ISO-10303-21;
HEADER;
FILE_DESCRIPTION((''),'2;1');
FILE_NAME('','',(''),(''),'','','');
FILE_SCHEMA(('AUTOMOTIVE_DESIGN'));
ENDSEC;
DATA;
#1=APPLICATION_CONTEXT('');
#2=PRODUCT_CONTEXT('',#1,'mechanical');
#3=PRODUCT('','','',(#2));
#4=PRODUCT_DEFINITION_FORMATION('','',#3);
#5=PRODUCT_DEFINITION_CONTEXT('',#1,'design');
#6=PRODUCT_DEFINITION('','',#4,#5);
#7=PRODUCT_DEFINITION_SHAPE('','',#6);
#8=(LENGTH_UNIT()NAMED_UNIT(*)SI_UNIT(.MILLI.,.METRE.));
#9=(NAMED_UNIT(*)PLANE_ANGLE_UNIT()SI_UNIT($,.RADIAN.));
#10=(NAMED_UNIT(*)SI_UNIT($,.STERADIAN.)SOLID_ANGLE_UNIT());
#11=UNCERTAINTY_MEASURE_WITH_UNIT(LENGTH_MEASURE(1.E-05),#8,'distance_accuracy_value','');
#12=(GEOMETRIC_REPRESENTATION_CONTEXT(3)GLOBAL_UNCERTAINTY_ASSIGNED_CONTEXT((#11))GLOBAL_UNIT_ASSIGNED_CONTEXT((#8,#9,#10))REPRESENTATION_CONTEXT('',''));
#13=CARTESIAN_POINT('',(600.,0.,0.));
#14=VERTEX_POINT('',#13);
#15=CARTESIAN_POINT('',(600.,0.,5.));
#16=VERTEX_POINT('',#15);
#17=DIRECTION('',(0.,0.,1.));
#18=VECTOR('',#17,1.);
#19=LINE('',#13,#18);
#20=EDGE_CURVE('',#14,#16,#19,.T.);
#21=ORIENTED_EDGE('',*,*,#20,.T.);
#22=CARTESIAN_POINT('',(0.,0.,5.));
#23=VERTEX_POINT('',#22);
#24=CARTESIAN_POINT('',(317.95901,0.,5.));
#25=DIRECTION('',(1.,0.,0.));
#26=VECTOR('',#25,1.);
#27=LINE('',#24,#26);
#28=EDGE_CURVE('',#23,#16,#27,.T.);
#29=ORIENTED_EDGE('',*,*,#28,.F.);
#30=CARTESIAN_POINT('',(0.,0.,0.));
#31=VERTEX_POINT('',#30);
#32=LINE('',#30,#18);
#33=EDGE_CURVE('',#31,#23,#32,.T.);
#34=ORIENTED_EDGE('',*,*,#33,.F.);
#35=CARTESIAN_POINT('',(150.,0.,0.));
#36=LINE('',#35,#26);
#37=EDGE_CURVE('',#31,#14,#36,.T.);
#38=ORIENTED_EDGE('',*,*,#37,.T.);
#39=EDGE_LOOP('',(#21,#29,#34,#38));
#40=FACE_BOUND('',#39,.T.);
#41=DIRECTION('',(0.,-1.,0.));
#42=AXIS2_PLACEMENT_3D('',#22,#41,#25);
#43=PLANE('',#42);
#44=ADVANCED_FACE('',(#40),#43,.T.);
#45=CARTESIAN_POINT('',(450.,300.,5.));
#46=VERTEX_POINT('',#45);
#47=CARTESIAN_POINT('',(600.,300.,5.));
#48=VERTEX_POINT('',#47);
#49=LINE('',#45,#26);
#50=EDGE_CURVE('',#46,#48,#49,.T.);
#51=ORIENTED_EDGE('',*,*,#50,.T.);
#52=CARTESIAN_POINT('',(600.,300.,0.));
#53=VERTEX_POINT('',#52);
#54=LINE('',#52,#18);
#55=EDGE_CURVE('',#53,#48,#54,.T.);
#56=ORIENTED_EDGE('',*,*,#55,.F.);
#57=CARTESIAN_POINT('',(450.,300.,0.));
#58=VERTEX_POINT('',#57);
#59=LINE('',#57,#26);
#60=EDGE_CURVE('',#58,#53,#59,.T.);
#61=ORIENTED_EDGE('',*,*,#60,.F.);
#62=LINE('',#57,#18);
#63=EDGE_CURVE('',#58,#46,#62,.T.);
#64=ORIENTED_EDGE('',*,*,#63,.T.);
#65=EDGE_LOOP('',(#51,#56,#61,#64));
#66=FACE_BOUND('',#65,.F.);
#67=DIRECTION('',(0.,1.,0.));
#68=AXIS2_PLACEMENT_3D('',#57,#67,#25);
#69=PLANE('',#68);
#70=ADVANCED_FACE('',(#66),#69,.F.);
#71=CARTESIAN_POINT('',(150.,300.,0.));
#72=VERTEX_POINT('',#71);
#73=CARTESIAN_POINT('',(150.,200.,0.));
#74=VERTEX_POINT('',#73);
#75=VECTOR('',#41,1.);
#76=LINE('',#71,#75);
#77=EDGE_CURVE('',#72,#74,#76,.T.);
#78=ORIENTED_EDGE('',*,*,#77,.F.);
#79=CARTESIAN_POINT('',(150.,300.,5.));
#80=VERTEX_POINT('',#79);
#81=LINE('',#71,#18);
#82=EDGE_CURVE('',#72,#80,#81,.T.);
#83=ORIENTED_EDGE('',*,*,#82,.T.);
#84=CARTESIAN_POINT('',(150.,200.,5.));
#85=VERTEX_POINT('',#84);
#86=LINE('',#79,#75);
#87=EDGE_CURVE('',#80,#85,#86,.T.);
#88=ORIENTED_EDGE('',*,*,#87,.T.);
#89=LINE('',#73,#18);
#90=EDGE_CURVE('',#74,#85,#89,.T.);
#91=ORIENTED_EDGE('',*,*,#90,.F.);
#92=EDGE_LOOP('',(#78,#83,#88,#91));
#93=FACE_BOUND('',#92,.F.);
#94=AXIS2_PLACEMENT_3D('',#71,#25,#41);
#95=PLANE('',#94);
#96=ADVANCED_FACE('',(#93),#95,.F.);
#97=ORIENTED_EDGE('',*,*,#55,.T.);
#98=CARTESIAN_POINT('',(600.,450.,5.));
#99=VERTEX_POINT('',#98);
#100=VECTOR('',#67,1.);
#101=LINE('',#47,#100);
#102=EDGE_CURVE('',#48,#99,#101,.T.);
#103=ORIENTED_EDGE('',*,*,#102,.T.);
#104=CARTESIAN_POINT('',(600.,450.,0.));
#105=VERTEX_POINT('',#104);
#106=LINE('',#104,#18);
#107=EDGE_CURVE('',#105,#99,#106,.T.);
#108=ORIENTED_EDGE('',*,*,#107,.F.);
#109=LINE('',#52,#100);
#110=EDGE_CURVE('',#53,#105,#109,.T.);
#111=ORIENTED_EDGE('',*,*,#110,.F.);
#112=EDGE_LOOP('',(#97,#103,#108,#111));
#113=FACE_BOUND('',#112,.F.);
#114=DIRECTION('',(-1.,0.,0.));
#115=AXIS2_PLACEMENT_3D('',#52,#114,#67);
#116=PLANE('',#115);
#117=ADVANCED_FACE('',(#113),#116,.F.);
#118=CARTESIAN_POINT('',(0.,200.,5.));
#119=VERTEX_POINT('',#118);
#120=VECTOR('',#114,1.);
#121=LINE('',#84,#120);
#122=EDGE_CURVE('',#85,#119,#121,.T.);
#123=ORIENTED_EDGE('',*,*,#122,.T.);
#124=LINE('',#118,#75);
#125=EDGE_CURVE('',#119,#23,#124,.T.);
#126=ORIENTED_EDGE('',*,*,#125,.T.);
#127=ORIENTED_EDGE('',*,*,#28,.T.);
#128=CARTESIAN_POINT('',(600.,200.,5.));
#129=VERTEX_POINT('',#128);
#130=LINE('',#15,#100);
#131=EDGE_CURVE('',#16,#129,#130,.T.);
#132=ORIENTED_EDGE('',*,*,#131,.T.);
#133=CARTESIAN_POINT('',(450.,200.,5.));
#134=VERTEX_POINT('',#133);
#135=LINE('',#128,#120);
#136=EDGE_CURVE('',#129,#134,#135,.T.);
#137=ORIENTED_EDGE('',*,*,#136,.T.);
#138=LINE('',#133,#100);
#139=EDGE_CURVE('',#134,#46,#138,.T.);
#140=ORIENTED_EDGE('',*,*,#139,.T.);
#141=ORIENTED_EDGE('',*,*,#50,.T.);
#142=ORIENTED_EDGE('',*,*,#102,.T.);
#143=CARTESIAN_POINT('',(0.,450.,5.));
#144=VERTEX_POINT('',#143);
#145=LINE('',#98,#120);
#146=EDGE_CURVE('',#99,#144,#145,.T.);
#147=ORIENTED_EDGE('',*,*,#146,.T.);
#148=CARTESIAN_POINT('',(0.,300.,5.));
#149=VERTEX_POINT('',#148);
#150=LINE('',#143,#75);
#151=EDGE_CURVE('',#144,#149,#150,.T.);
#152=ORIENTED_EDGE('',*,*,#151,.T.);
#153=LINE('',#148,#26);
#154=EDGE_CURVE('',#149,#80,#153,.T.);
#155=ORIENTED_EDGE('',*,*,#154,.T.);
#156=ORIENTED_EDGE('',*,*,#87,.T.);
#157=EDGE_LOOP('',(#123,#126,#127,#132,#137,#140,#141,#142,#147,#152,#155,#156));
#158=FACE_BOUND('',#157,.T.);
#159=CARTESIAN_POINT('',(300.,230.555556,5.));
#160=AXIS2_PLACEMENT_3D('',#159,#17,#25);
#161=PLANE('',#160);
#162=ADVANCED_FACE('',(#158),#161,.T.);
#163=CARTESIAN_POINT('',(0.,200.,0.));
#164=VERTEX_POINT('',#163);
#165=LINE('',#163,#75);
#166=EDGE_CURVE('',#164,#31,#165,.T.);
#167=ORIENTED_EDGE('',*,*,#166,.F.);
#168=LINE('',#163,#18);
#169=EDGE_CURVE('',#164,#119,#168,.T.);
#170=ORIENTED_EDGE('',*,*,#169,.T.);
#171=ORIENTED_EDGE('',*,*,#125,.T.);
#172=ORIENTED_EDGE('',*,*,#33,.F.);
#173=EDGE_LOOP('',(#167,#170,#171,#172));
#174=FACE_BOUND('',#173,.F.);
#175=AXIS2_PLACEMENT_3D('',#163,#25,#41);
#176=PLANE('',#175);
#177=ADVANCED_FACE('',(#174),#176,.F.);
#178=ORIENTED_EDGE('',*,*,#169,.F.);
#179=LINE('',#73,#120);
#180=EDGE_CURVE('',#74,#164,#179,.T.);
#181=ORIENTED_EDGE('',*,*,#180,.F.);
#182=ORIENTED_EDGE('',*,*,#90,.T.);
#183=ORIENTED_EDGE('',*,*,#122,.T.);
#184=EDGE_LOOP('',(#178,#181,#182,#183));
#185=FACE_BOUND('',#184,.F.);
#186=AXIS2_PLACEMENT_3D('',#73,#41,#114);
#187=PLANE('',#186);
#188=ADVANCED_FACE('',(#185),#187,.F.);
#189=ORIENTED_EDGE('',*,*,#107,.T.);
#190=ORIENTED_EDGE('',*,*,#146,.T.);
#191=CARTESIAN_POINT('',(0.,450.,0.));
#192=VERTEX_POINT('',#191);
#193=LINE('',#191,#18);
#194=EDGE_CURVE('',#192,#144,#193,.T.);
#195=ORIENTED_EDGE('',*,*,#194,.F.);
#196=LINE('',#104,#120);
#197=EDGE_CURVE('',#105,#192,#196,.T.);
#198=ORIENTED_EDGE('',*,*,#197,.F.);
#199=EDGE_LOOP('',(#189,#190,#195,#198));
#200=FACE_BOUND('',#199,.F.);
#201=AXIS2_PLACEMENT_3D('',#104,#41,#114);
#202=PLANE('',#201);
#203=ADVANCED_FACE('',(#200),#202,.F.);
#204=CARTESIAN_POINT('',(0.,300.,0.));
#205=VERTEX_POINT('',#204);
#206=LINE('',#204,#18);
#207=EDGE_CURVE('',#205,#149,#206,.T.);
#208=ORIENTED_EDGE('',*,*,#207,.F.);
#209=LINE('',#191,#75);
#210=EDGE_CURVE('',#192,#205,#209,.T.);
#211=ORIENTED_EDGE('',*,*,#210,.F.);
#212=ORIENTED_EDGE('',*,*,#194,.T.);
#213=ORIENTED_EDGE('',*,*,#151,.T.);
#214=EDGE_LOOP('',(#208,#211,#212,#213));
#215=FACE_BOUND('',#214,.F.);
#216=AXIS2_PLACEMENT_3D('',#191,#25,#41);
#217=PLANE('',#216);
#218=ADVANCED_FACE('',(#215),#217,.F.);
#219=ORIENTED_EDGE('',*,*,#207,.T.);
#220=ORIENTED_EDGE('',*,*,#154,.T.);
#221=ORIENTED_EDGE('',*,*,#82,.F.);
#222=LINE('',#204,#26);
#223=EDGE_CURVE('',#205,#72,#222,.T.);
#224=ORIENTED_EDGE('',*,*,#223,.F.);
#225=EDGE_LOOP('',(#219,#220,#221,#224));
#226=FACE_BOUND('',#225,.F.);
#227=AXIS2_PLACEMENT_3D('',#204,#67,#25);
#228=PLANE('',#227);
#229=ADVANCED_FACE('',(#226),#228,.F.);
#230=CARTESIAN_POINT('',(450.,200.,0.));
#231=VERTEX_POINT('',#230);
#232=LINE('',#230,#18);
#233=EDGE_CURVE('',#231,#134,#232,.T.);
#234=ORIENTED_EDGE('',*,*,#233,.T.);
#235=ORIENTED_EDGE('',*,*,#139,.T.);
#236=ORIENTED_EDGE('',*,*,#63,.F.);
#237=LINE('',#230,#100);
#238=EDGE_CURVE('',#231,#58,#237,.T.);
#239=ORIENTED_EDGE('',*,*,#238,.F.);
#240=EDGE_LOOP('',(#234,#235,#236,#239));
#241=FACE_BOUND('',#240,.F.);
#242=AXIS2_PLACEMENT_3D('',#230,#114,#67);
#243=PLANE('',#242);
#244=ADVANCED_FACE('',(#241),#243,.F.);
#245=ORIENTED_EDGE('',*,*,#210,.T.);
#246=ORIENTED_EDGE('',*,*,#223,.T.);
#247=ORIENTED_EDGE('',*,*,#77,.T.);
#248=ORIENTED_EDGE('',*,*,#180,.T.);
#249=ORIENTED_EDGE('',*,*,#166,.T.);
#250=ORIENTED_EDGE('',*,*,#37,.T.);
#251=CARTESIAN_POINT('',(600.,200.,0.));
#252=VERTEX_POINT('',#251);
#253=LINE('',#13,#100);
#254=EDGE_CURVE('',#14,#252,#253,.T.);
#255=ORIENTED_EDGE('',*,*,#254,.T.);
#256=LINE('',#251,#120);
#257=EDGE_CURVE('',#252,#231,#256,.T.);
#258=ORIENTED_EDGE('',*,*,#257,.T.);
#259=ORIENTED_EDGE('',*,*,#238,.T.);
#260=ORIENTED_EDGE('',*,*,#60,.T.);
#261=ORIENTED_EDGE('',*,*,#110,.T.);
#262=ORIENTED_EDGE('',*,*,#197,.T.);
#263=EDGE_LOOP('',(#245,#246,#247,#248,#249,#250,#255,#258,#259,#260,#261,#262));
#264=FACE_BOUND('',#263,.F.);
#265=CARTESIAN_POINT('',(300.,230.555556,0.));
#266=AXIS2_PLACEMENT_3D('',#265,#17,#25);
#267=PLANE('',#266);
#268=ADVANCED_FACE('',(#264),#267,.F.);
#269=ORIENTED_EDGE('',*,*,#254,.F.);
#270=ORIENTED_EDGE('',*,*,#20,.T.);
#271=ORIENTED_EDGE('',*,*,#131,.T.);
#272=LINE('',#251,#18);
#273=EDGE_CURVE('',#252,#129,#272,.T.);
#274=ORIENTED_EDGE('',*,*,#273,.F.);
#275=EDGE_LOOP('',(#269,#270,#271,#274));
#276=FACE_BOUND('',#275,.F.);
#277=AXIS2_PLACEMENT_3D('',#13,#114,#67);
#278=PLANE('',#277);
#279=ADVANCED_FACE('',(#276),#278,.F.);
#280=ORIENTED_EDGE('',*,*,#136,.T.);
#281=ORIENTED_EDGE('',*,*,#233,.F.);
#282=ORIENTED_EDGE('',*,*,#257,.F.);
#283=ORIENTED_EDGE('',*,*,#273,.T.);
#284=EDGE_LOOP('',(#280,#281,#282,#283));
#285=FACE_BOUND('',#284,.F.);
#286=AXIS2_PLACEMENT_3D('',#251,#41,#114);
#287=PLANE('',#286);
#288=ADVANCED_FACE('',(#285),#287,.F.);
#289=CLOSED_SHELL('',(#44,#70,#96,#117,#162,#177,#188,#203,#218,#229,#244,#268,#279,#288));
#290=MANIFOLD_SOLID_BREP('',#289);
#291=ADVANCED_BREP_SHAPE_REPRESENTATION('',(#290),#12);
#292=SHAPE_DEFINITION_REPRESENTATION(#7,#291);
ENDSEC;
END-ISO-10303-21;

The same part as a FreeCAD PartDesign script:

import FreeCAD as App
import Part
import Sketcher
Q = App.Units.Quantity

doc = App.newDocument("Part")
body = doc.addObject("PartDesign::Body", "Body")

sketch1 = body.newObject("Sketcher::SketchObject", "Sketch")
sketch1.AttachmentSupport = (doc.getObject("XY_Plane"), [""])
sketch1.MapMode = "FlatFace"
sketch1.addGeometry([
    Part.LineSegment(App.Vector(0, 200, 0), App.Vector(0, 0, 0)),
    Part.LineSegment(App.Vector(0, 0, 0), App.Vector(150, -200, 0)),
    Part.LineSegment(App.Vector(150, -200, 0), App.Vector(450, -200, 0)),
    Part.LineSegment(App.Vector(450, -200, 0), App.Vector(600, 0, 0)),
    Part.LineSegment(App.Vector(600, 0, 0), App.Vector(600, 200, 0)),
    Part.LineSegment(App.Vector(600, 200, 0), App.Vector(450, 200, 0)),
    Part.LineSegment(App.Vector(450, 200, 0), App.Vector(450, 300, 0)),
    Part.LineSegment(App.Vector(450, 300, 0), App.Vector(600, 300, 0)),
    Part.LineSegment(App.Vector(600, 300, 0), App.Vector(600, 450, 0)),
    Part.LineSegment(App.Vector(600, 450, 0), App.Vector(0, 450, 0)),
    Part.LineSegment(App.Vector(0, 450, 0), App.Vector(0, 300, 0)),
    Part.LineSegment(App.Vector(0, 300, 0), App.Vector(150, 300, 0)),
    Part.LineSegment(App.Vector(150, 300, 0), App.Vector(150, 200, 0)),
    Part.LineSegment(App.Vector(150, 200, 0), App.Vector(0, 200, 0)),
], False)
sketch1.addConstraint([
    Sketcher.Constraint("Coincident", 0, 2, 1, 1),
    Sketcher.Constraint("Coincident", 1, 2, 2, 1),
    Sketcher.Constraint("Coincident", 2, 2, 3, 1),
    Sketcher.Constraint("Coincident", 3, 2, 4, 1),
    Sketcher.Constraint("Coincident", 4, 2, 5, 1),
    Sketcher.Constraint("Coincident", 5, 2, 6, 1),
    Sketcher.Constraint("Coincident", 6, 2, 7, 1),
    Sketcher.Constraint("Coincident", 7, 2, 8, 1),
    Sketcher.Constraint("Coincident", 8, 2, 9, 1),
    Sketcher.Constraint("Coincident", 9, 2, 10, 1),
    Sketcher.Constraint("Coincident", 10, 2, 11, 1),
    Sketcher.Constraint("Coincident", 11, 2, 12, 1),
    Sketcher.Constraint("Coincident", 12, 2, 13, 1),
    Sketcher.Constraint("Coincident", 13, 2, 0, 1),
    Sketcher.Constraint("Vertical", 0),
    Sketcher.Constraint("Horizontal", 2),
    Sketcher.Constraint("Vertical", 4),
    Sketcher.Constraint("Horizontal", 5),
    Sketcher.Constraint("Vertical", 6),
    Sketcher.Constraint("Horizontal", 7),
    Sketcher.Constraint("Vertical", 8),
    Sketcher.Constraint("Horizontal", 9),
    Sketcher.Constraint("Vertical", 10),
    Sketcher.Constraint("Horizontal", 11),
    Sketcher.Constraint("Vertical", 12),
    Sketcher.Constraint("Horizontal", 13),
    Sketcher.Constraint("Coincident", 0, 2, -1, 1),
    Sketcher.Constraint("Symmetric", 2, 2, 5, 2, -1),
    Sketcher.Constraint("Symmetric", 1, 2, 12, 2, -1),
    Sketcher.Constraint("PointOnObject", 3, 2, -1),
    Sketcher.Constraint("PointOnObject", 9, 2, -2),
    Sketcher.Constraint("Horizontal", 7, 2, 10, 2),
    Sketcher.Constraint("Vertical", 4, 2, 7, 2),
    Sketcher.Constraint("Equal", 7, 11),
    Sketcher.Constraint("Equal", 13, 8),
    Sketcher.Constraint("DistanceX", 2, 1, 2, 2, Q("300 mm")),
    Sketcher.Constraint("DistanceX", 5, 2, 5, 1, Q("150 mm")),
    Sketcher.Constraint("DistanceY", 0, 2, 0, 1, Q("200 mm")),
    Sketcher.Constraint("DistanceY", 6, 1, 6, 2, Q("100 mm")),
])
pad1 = body.newObject("PartDesign::Pad", "Pad")
pad1.Profile = sketch1
pad1.Length = 5

sketch2 = body.newObject("Sketcher::SketchObject", "Sketch001")
sketch2.AttachmentSupport = (doc.getObject("XY_Plane"), [""])
sketch2.MapMode = "FlatFace"
sketch2.AttachmentOffset = App.Placement(App.Vector(0, 0, 5), App.Rotation())
sketch2.addGeometry([
    Part.LineSegment(App.Vector(0, 0, 0), App.Vector(0, -207.585454, 0)),
    Part.LineSegment(App.Vector(0, -207.585454, 0), App.Vector(635.918021, -207.585454, 0)),
    Part.LineSegment(App.Vector(635.918021, -207.585454, 0), App.Vector(635.918021, 0, 0)),
    Part.LineSegment(App.Vector(635.918021, 0, 0), App.Vector(0, 0, 0)),
], False)
sketch2.addConstraint([
    Sketcher.Constraint("Coincident", 0, 2, 1, 1),
    Sketcher.Constraint("Coincident", 1, 2, 2, 1),
    Sketcher.Constraint("Coincident", 2, 2, 3, 1),
    Sketcher.Constraint("Coincident", 3, 2, 0, 1),
    Sketcher.Constraint("Vertical", 0),
    Sketcher.Constraint("Horizontal", 1),
    Sketcher.Constraint("Vertical", 2),
    Sketcher.Constraint("Horizontal", 3),
    Sketcher.Constraint("Coincident", 3, 2, -1, 1),
    Sketcher.Constraint("DistanceX", 1, 1, 1, 2, Q("635.918021 mm")),
    Sketcher.Constraint("DistanceY", 0, 2, 0, 1, Q("207.585454 mm")),
])
pocket1 = body.newObject("PartDesign::Pocket", "Pocket")
pocket1.Profile = sketch2
pocket1.Length = 25

doc.recompute()
